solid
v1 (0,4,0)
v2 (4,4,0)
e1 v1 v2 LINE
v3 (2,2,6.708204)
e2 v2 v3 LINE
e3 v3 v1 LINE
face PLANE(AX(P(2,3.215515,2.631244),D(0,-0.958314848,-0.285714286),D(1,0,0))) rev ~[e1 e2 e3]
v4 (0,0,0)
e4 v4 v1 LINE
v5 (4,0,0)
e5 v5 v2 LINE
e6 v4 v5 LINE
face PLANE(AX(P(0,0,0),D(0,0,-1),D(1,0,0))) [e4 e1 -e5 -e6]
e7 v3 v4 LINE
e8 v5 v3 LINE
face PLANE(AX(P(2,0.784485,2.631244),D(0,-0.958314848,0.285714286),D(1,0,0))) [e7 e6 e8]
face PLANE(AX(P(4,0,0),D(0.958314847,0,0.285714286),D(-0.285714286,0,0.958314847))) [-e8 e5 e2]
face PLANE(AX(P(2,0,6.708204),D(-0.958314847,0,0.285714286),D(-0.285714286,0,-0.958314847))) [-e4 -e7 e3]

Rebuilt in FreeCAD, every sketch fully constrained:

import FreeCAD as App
import Part
import Sketcher


def add_polygon(sketch, points):
    """Adds a closed chain of lines whose ends are joined by coincident constraints."""
    first, n = sketch.GeometryCount, len(points)
    for a, b in zip(points, points[1:] + points[:1]):
        sketch.addGeometry(Part.LineSegment(App.Vector(*a, 0), App.Vector(*b, 0)), False)
    for i in range(n):
        sketch.addConstraint(Sketcher.Constraint("Coincident", first + i, 2, first + (i + 1) % n, 1))

doc = App.newDocument("Part")
params = doc.addObject("Spreadsheet::Sheet", "Params")
for row, (alias, value) in enumerate([
    ("sketch1_width", "4 mm"),
    ("sketch1_length", "7 mm"),
    ("pad1_length", "4 mm"),
    ("sketch2_width", "4 mm"),
    ("pocket1_length", "25 mm"),
    ("sketch3_width", "4 mm"),
    ("pocket2_length", "25 mm"),
], start=1):
    params.set(f"A{row}", alias)
    params.set(f"B{row}", "=" + value)
    params.setAlias(f"B{row}", alias)

body = doc.addObject("PartDesign::Body", "Body")

sketch1 = body.newObject("Sketcher::SketchObject", "Sketch")
sketch1.AttachmentSupport = (doc.getObject("XZ_Plane"), [""])
sketch1.MapMode = "FlatFace"
add_polygon(sketch1, [(2, 6.7), (0, 0), (4, 0)])
sketch1.addConstraint([
    Sketcher.Constraint("Horizontal", 1),
    Sketcher.Constraint("Coincident", 0, 2, -1, 1),
    Sketcher.Constraint("Equal", 0, 2),
    Sketcher.Constraint("DistanceX", 1, 1, 1, 2, 4.0),
    Sketcher.Constraint("Distance", 0, 7.0),
])
sketch1.setExpression("Constraints[6]", "Params.sketch1_width")
sketch1.setExpression("Constraints[7]", "Params.sketch1_length")
pad1 = body.newObject("PartDesign::Pad", "Pad")
pad1.Profile = sketch1
pad1.setExpression("Length", "Params.pad1_length")
pad1.Reversed = True

sketch2 = body.newObject("Sketcher::SketchObject", "Sketch001")
sketch2.Placement = App.Placement(App.Vector(0, 0, 0), App.Rotation(App.Vector(1, 0, 0), App.Vector(0, 0.285714286, 0.958314848), App.Vector(0, -0.958314848, 0.285714286), "ZXY"))
add_polygon(sketch2, [(4, 0), (2, 7), (0, 0)])
sketch2.addConstraint([
    Sketcher.Constraint("Horizontal", 2),
    Sketcher.Constraint("Coincident", 1, 2, -1, 1),
    Sketcher.Constraint("Equal", 0, 1),
    Sketcher.Constraint("DistanceX", 2, 1, 2, 2, 4.0),
    Sketcher.Constraint("DistanceY", -1, 1, 0, 2, 7.0),
])
sketch2.setExpression("Constraints[6]", "Params.sketch2_width")
pocket1 = body.newObject("PartDesign::Pocket", "Pocket")
pocket1.Profile = sketch2
pocket1.setExpression("Length", "Params.pocket1_length")
pocket1.Reversed = True

sketch3 = body.newObject("Sketcher::SketchObject", "Sketch002")
sketch3.Placement = App.Placement(App.Vector(0, 3.673469, 1.095217), App.Rotation(App.Vector(1, 0, 0), App.Vector(0, -0.285714286, 0.958314848), App.Vector(0, -0.958314848, -0.285714286), "ZXY"))
add_polygon(sketch3, [(4, -1.1), (2, 5.9), (0, -1.1)])
sketch3.addConstraint([
    Sketcher.Constraint("Horizontal", 2),
    Sketcher.Constraint("PointOnObject", 1, 2, -2),
    Sketcher.Constraint("Equal", 0, 1),
    Sketcher.Constraint("DistanceX", 2, 1, 2, 2, 4.0),
    Sketcher.Constraint("DistanceY", 1, 2, 0, 2, 7.0),
    Sketcher.Constraint("DistanceY", -1, 1, 0, 2, 5.857143),
])
sketch3.setExpression("Constraints[6]", "Params.sketch3_width")
pocket2 = body.newObject("PartDesign::Pocket", "Pocket001")
pocket2.Profile = sketch3
pocket2.setExpression("Length", "Params.pocket2_length")

doc.recompute()
